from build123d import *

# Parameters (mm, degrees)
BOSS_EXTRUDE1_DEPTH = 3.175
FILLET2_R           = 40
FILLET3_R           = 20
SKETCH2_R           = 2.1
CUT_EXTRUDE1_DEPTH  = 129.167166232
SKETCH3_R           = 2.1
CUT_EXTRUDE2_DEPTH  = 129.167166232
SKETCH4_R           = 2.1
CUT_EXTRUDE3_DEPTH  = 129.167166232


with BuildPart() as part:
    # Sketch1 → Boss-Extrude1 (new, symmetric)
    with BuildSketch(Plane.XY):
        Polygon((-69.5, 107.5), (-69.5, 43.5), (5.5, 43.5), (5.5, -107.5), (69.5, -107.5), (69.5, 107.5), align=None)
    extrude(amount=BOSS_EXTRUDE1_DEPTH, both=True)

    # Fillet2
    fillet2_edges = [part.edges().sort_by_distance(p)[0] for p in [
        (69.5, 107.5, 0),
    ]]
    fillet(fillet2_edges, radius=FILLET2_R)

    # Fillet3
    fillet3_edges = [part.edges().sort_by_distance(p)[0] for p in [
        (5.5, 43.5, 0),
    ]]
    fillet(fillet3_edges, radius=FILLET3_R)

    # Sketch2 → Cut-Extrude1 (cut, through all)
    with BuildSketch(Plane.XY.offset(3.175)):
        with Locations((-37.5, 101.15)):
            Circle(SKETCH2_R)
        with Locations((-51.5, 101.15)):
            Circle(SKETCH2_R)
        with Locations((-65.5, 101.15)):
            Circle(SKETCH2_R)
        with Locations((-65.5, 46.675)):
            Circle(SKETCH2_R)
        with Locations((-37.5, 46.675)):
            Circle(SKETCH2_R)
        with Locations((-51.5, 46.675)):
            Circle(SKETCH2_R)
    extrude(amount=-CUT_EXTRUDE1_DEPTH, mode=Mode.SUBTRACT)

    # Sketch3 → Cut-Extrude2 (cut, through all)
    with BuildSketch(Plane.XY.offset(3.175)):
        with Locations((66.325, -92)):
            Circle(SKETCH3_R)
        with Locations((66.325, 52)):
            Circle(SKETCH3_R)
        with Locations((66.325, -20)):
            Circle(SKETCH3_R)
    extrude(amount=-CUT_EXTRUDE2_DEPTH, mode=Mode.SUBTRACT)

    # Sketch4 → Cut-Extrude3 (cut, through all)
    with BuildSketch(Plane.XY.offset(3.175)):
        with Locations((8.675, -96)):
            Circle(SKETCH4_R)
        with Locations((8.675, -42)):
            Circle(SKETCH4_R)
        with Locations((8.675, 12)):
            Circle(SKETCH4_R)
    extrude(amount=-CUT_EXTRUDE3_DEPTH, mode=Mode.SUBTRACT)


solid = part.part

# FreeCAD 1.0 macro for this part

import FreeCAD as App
import Part
import Sketcher
from FreeCAD import Vector


def edges_at(feature, points):
    """Names of the edges that pass closest to the given points."""
    edges = feature.Shape.Edges
    near = lambda p: min(range(len(edges)), key=lambda i: edges[i].distToShape(Part.Vertex(*p))[0])
    return sorted({f"Edge{near(p) + 1}" for p in points})

doc = App.newDocument("Part")
body = doc.addObject("PartDesign::Body", "Body")

# Sketch on XY plane
sketch1 = body.newObject("Sketcher::SketchObject", "Sketch")
sketch1.AttachmentSupport = (doc.getObject("XY_Plane"), [""])
sketch1.MapMode = "FlatFace"
sketch1.addGeometry(Part.LineSegment(Vector(-70, 108, 0), Vector(-70, 44, 0)), False)
sketch1.addGeometry(Part.LineSegment(Vector(-70, 44, 0), Vector(6, 44, 0)), False)
sketch1.addGeometry(Part.LineSegment(Vector(6, 44, 0), Vector(6, -108, 0)), False)
sketch1.addGeometry(Part.LineSegment(Vector(6, -108, 0), Vector(70, -108, 0)), False)
sketch1.addGeometry(Part.LineSegment(Vector(70, -108, 0), Vector(70, 108, 0)), False)
sketch1.addGeometry(Part.LineSegment(Vector(70, 108, 0), Vector(-70, 108, 0)), False)
sketch1.addConstraint(Sketcher.Constraint("Coincident", 0, 2, 1, 1))
sketch1.addConstraint(Sketcher.Constraint("Coincident", 1, 2, 2, 1))
sketch1.addConstraint(Sketcher.Constraint("Coincident", 2, 2, 3, 1))
sketch1.addConstraint(Sketcher.Constraint("Coincident", 3, 2, 4, 1))
sketch1.addConstraint(Sketcher.Constraint("Coincident", 4, 2, 5, 1))
sketch1.addConstraint(Sketcher.Constraint("Coincident", 5, 2, 0, 1))
sketch1.addConstraint(Sketcher.Constraint("Vertical", 0))
sketch1.addConstraint(Sketcher.Constraint("Horizontal", 1))
sketch1.addConstraint(Sketcher.Constraint("Vertical", 2))
sketch1.addConstraint(Sketcher.Constraint("Horizontal", 3))
sketch1.addConstraint(Sketcher.Constraint("Vertical", 4))
sketch1.addConstraint(Sketcher.Constraint("Horizontal", 5))
sketch1.addConstraint(Sketcher.Constraint("Symmetric", 3, 2, 5, 2, -1, 1))
sketch1.addConstraint(Sketcher.Constraint("Equal", 3, 0))
sketch1.addConstraint(Sketcher.Constraint("DistanceX", 1, 1, 1, 2, 75.0))
sketch1.addConstraint(Sketcher.Constraint("DistanceX", 3, 1, 3, 2, 64.0))
sketch1.addConstraint(Sketcher.Constraint("DistanceY", 2, 2, 2, 1, 151.0))
pad1 = body.newObject("PartDesign::Pad", "Pad")
pad1.Profile = sketch1
pad1.Length = 6.35
pad1.Midplane = True
doc.recompute()

fillet = body.newObject("PartDesign::Fillet", "Fillet")
fillet.Base = (pad1, edges_at(pad1, [(69.5, 107.5, 0)]))
fillet.Radius = 40
doc.recompute()

fillet2 = body.newObject("PartDesign::Fillet", "Fillet001")
fillet2.Base = (fillet, edges_at(fillet, [(5.5, 43.5, 0)]))
fillet2.Radius = 20

# Sketch on XY plane
sketch2 = body.newObject("Sketcher::SketchObject", "Sketch001")
sketch2.AttachmentSupport = (doc.getObject("XY_Plane"), [""])
sketch2.MapMode = "FlatFace"
sketch2.AttachmentOffset = App.Placement(Vector(0, 0, 3.175), App.Rotation())
sketch2.addGeometry(Part.Circle(Vector(-37.5, 101.2, 0), Vector(0, 0, 1), 2.1), False)
sketch2.addGeometry(Part.Circle(Vector(-51.5, 101.2, 0), Vector(0, 0, 1), 2.1), False)
sketch2.addGeometry(Part.Circle(Vector(-65.5, 101.2, 0), Vector(0, 0, 1), 2.1), False)
sketch2.addGeometry(Part.Circle(Vector(-65.5, 46.7, 0), Vector(0, 0, 1), 2.1), False)
sketch2.addGeometry(Part.Circle(Vector(-37.5, 46.7, 0), Vector(0, 0, 1), 2.1), False)
sketch2.addGeometry(Part.Circle(Vector(-51.5, 46.7, 0), Vector(0, 0, 1), 2.1), False)
sketch2.addConstraint(Sketcher.Constraint("Equal", 0, 1))
sketch2.addConstraint(Sketcher.Constraint("Equal", 1, 2))
sketch2.addConstraint(Sketcher.Constraint("Equal", 2, 3))
sketch2.addConstraint(Sketcher.Constraint("Equal", 3, 4))
sketch2.addConstraint(Sketcher.Constraint("Equal", 4, 5))
sketch2.addConstraint(Sketcher.Constraint("Horizontal", 0, 3, 1, 3))
sketch2.addConstraint(Sketcher.Constraint("Horizontal", 1, 3, 2, 3))
sketch2.addConstraint(Sketcher.Constraint("Horizontal", 3, 3, 4, 3))
sketch2.addConstraint(Sketcher.Constraint("Horizontal", 4, 3, 5, 3))
sketch2.addConstraint(Sketcher.Constraint("Vertical", 2, 3, 3, 3))
sketch2.addConstraint(Sketcher.Constraint("Vertical", 0, 3, 4, 3))
sketch2.addConstraint(Sketcher.Constraint("Vertical", 1, 3, 5, 3))
sketch2.addConstraint(Sketcher.Constraint("Diameter", 0, 4.2))
sketch2.addConstraint(Sketcher.Constraint("DistanceX", 1, 3, 0, 3, 14.0))
sketch2.addConstraint(Sketcher.Constraint("DistanceX", 2, 3, 1, 3, 14.0))
sketch2.addConstraint(Sketcher.Constraint("DistanceX", 0, 3, -1, 1, 37.5))
sketch2.addConstraint(Sketcher.Constraint("DistanceY", -1, 1, 0, 3, 101.15))
sketch2.addConstraint(Sketcher.Constraint("DistanceY", -1, 1, 3, 3, 46.675))
pocket1 = body.newObject("PartDesign::Pocket", "Pocket")
pocket1.Profile = sketch2
pocket1.Type = "ThroughAll"

# Sketch on XY plane
sketch3 = body.newObject("Sketcher::SketchObject", "Sketch002")
sketch3.AttachmentSupport = (doc.getObject("XY_Plane"), [""])
sketch3.MapMode = "FlatFace"
sketch3.AttachmentOffset = App.Placement(Vector(0, 0, 3.175), App.Rotation())
sketch3.addGeometry(Part.Circle(Vector(66.3, -92, 0), Vector(0, 0, 1), 2.1), False)
sketch3.addGeometry(Part.Circle(Vector(66.3, 52, 0), Vector(0, 0, 1), 2.1), False)
sketch3.addGeometry(Part.Circle(Vector(66.3, -20, 0), Vector(0, 0, 1), 2.1), False)
sketch3.addConstraint(Sketcher.Constraint("Equal", 0, 1))
sketch3.addConstraint(Sketcher.Constraint("Equal", 1, 2))
sketch3.addConstraint(Sketcher.Constraint("Vertical", 0, 3, 1, 3))
sketch3.addConstraint(Sketcher.Constraint("Vertical", 1, 3, 2, 3))
sketch3.addConstraint(Sketcher.Constraint("Diameter", 0, 4.2))
sketch3.addConstraint(Sketcher.Constraint("DistanceY", 0, 3, -1, 1, 92.0))
sketch3.addConstraint(Sketcher.Constraint("DistanceY", -1, 1, 1, 3, 52.0))
sketch3.addConstraint(Sketcher.Constraint("DistanceY", 2, 3, -1, 1, 20.0))
sketch3.addConstraint(Sketcher.Constraint("DistanceX", -1, 1, 0, 3, 66.325))
pocket2 = body.newObject("PartDesign::Pocket", "Pocket001")
pocket2.Profile = sketch3
pocket2.Type = "ThroughAll"

# Sketch on XY plane
sketch4 = body.newObject("Sketcher::SketchObject", "Sketch003")
sketch4.AttachmentSupport = (doc.getObject("XY_Plane"), [""])
sketch4.MapMode = "FlatFace"
sketch4.AttachmentOffset = App.Placement(Vector(0, 0, 3.175), App.Rotation())
sketch4.addGeometry(Part.Circle(Vector(8.7, -96, 0), Vector(0, 0, 1), 2.1), False)
sketch4.addGeometry(Part.Circle(Vector(8.7, -42, 0), Vector(0, 0, 1), 2.1), False)
sketch4.addGeometry(Part.Circle(Vector(8.7, 12, 0), Vector(0, 0, 1), 2.1), False)
sketch4.addConstraint(Sketcher.Constraint("Equal", 0, 1))
sketch4.addConstraint(Sketcher.Constraint("Equal", 1, 2))
sketch4.addConstraint(Sketcher.Constraint("Vertical", 0, 3, 1, 3))
sketch4.addConstraint(Sketcher.Constraint("Vertical", 1, 3, 2, 3))
sketch4.addConstraint(Sketcher.Constraint("Diameter", 0, 4.2))
sketch4.addConstraint(Sketcher.Constraint("DistanceY", 0, 3, -1, 1, 96.0))
sketch4.addConstraint(Sketcher.Constraint("DistanceY", 1, 3, -1, 1, 42.0))
sketch4.addConstraint(Sketcher.Constraint("DistanceY", -1, 1, 2, 3, 12.0))
sketch4.addConstraint(Sketcher.Constraint("DistanceX", -1, 1, 0, 3, 8.675))
pocket3 = body.newObject("PartDesign::Pocket", "Pocket002")
pocket3.Profile = sketch4
pocket3.Type = "ThroughAll"

doc.recompute()
